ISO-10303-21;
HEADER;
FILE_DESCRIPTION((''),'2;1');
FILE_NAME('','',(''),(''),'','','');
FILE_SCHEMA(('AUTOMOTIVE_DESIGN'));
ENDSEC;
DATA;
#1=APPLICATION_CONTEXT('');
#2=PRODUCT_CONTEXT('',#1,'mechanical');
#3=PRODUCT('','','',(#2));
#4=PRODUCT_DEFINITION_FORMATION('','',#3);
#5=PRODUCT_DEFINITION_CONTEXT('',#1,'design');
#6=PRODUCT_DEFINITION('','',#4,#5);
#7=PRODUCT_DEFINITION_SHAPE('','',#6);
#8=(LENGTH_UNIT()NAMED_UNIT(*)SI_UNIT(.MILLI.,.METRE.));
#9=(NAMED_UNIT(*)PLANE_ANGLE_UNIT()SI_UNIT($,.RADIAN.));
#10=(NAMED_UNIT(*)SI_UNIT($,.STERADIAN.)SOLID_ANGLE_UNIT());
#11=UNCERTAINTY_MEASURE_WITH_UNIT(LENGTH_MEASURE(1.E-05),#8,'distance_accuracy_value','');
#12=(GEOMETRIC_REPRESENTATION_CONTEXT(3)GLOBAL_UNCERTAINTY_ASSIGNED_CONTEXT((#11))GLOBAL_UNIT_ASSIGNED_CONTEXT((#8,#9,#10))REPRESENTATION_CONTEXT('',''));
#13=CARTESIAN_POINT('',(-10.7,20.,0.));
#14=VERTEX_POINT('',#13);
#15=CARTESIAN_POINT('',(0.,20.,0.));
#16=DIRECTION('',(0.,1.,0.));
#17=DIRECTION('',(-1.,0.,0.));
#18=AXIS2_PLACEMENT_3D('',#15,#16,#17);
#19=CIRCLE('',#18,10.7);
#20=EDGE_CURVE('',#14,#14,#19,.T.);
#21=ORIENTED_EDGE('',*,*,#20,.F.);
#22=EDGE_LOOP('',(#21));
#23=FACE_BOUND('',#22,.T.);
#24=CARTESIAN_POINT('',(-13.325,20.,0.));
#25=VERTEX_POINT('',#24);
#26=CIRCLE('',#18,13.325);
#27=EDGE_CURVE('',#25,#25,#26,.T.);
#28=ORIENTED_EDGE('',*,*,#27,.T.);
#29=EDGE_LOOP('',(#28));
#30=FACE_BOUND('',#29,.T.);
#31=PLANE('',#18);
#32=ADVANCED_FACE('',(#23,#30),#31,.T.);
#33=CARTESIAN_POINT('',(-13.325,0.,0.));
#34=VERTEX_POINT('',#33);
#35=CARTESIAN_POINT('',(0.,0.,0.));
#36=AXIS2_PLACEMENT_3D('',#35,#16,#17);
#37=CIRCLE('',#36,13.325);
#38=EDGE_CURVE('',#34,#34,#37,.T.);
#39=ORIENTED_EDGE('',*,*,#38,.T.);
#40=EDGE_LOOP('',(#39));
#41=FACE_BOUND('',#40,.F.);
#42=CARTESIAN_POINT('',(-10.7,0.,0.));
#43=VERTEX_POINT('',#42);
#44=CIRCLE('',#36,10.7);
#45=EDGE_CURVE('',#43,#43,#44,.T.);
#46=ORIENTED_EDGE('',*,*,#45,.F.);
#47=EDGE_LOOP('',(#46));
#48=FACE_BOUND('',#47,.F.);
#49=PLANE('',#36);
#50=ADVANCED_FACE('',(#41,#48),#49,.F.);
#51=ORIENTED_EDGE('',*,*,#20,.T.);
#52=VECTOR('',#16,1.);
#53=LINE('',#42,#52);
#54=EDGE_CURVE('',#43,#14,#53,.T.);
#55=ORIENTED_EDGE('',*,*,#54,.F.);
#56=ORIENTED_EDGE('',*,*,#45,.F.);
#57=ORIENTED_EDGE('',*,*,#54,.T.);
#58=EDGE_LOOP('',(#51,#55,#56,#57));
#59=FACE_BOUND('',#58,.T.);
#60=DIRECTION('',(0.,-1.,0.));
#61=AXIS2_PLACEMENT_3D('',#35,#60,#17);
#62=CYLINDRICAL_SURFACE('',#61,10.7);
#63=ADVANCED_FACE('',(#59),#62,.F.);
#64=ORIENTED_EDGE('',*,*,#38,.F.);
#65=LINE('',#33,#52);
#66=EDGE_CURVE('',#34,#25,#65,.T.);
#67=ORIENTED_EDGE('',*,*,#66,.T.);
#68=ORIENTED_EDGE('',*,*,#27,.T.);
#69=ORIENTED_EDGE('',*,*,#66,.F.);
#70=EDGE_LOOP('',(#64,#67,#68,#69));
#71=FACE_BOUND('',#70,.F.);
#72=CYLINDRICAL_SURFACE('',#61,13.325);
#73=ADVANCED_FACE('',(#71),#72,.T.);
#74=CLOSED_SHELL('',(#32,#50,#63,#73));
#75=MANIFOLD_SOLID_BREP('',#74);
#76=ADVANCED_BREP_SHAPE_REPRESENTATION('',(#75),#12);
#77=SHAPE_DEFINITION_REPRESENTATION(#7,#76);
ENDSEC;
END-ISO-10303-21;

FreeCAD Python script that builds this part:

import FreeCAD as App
import Part
import Sketcher

V = App.Vector
Q = App.Units.Quantity

doc = App.newDocument("Part")
body = doc.addObject("PartDesign::Body", "Body")

# Sketch on XZ plane
sketch1 = body.newObject("Sketcher::SketchObject", "Sketch")
sketch1.AttachmentSupport = (doc.getObject("XZ_Plane"), [""])
sketch1.MapMode = "FlatFace"
sketch1.addGeometry([
    Part.Circle(V(0, 0, 0), V(0, 0, 1), 13),
    Part.Circle(V(0, 0, 0), V(0, 0, 1), 11),
], False)
sketch1.addConstraint([
    Sketcher.Constraint("Coincident", 0, 3, -1, 1),
    Sketcher.Constraint("Coincident", 1, 3, -1, 1),
    Sketcher.Constraint("Diameter", 1, Q("21.4 mm")),
    Sketcher.Constraint("Diameter", 0, Q("26.65 mm")),
])
pad1 = body.newObject("PartDesign::Pad", "Pad")
pad1.Profile = sketch1
pad1.Length = 20
pad1.Reversed = True

doc.recompute()
